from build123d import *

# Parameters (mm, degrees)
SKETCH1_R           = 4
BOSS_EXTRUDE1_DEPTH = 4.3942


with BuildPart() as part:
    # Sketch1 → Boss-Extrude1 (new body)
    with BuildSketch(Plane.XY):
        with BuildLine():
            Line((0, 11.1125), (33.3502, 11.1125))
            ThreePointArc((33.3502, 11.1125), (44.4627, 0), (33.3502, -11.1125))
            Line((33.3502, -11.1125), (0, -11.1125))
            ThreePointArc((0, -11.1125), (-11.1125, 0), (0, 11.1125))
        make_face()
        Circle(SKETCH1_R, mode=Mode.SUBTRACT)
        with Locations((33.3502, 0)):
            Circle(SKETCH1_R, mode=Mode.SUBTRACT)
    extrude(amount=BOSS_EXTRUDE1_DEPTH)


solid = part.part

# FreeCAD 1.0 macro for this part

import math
import FreeCAD as App
import Part
import Sketcher

V = App.Vector
Q = App.Units.Quantity

doc = App.newDocument("Part")
body = doc.addObject("PartDesign::Body", "Body")

sketch1 = doc.addObject("Sketcher::SketchObject", "Sketch")
body.addObject(sketch1)
sketch1.AttachmentSupport = (doc.XY_Plane, [""])
sketch1.MapMode = "FlatFace"
sketch1.addGeometry(Part.LineSegment(V(33.4, 11.1, 0), V(0, 11.1, 0)), False)
sketch1.addGeometry(Part.ArcOfCircle(Part.Circle(V(0, 0, 0), V(0, 0, 1), 11.1), math.radians(90), math.radians(270)), False)
sketch1.addGeometry(Part.LineSegment(V(0, -11.1, 0), V(33.4, -11.1, 0)), False)
sketch1.addGeometry(Part.ArcOfCircle(Part.Circle(V(33.4, 0, 0), V(0, 0, 1), 11.1), math.radians(-90), math.radians(90)), False)
sketch1.addGeometry(Part.Circle(V(33.4, 0, 0), V(0, 0, 1), 4), False)
sketch1.addGeometry(Part.Circle(V(0, 0, 0), V(0, 0, 1), 4), False)
sketch1.addConstraint(Sketcher.Constraint("Tangent", 0, 2, 1, 1))
sketch1.addConstraint(Sketcher.Constraint("Tangent", 1, 2, 2, 1))
sketch1.addConstraint(Sketcher.Constraint("Tangent", 2, 2, 3, 1))
sketch1.addConstraint(Sketcher.Constraint("Tangent", 3, 2, 0, 1))
sketch1.addConstraint(Sketcher.Constraint("Horizontal", 0))
sketch1.addConstraint(Sketcher.Constraint("Horizontal", 2))
sketch1.addConstraint(Sketcher.Constraint("Coincident", 1, 3, -1, 1))
sketch1.addConstraint(Sketcher.Constraint("Coincident", 5, 3, -1, 1))
sketch1.addConstraint(Sketcher.Constraint("Coincident", 4, 3, 3, 3))
sketch1.addConstraint(Sketcher.Constraint("Equal", 4, 5))
sketch1.addConstraint(Sketcher.Constraint("Radius", 1, Q("0.4375 in")))
sketch1.addConstraint(Sketcher.Constraint("Diameter", 4, 8.0))
sketch1.addConstraint(Sketcher.Constraint("DistanceX", 0, 2, 0, 1, Q("1.313 in")))
pad1 = doc.addObject("PartDesign::Pad", "Pad")
body.addObject(pad1)
pad1.Profile = sketch1
pad1.Length = Q("0.173 in")

doc.recompute()
